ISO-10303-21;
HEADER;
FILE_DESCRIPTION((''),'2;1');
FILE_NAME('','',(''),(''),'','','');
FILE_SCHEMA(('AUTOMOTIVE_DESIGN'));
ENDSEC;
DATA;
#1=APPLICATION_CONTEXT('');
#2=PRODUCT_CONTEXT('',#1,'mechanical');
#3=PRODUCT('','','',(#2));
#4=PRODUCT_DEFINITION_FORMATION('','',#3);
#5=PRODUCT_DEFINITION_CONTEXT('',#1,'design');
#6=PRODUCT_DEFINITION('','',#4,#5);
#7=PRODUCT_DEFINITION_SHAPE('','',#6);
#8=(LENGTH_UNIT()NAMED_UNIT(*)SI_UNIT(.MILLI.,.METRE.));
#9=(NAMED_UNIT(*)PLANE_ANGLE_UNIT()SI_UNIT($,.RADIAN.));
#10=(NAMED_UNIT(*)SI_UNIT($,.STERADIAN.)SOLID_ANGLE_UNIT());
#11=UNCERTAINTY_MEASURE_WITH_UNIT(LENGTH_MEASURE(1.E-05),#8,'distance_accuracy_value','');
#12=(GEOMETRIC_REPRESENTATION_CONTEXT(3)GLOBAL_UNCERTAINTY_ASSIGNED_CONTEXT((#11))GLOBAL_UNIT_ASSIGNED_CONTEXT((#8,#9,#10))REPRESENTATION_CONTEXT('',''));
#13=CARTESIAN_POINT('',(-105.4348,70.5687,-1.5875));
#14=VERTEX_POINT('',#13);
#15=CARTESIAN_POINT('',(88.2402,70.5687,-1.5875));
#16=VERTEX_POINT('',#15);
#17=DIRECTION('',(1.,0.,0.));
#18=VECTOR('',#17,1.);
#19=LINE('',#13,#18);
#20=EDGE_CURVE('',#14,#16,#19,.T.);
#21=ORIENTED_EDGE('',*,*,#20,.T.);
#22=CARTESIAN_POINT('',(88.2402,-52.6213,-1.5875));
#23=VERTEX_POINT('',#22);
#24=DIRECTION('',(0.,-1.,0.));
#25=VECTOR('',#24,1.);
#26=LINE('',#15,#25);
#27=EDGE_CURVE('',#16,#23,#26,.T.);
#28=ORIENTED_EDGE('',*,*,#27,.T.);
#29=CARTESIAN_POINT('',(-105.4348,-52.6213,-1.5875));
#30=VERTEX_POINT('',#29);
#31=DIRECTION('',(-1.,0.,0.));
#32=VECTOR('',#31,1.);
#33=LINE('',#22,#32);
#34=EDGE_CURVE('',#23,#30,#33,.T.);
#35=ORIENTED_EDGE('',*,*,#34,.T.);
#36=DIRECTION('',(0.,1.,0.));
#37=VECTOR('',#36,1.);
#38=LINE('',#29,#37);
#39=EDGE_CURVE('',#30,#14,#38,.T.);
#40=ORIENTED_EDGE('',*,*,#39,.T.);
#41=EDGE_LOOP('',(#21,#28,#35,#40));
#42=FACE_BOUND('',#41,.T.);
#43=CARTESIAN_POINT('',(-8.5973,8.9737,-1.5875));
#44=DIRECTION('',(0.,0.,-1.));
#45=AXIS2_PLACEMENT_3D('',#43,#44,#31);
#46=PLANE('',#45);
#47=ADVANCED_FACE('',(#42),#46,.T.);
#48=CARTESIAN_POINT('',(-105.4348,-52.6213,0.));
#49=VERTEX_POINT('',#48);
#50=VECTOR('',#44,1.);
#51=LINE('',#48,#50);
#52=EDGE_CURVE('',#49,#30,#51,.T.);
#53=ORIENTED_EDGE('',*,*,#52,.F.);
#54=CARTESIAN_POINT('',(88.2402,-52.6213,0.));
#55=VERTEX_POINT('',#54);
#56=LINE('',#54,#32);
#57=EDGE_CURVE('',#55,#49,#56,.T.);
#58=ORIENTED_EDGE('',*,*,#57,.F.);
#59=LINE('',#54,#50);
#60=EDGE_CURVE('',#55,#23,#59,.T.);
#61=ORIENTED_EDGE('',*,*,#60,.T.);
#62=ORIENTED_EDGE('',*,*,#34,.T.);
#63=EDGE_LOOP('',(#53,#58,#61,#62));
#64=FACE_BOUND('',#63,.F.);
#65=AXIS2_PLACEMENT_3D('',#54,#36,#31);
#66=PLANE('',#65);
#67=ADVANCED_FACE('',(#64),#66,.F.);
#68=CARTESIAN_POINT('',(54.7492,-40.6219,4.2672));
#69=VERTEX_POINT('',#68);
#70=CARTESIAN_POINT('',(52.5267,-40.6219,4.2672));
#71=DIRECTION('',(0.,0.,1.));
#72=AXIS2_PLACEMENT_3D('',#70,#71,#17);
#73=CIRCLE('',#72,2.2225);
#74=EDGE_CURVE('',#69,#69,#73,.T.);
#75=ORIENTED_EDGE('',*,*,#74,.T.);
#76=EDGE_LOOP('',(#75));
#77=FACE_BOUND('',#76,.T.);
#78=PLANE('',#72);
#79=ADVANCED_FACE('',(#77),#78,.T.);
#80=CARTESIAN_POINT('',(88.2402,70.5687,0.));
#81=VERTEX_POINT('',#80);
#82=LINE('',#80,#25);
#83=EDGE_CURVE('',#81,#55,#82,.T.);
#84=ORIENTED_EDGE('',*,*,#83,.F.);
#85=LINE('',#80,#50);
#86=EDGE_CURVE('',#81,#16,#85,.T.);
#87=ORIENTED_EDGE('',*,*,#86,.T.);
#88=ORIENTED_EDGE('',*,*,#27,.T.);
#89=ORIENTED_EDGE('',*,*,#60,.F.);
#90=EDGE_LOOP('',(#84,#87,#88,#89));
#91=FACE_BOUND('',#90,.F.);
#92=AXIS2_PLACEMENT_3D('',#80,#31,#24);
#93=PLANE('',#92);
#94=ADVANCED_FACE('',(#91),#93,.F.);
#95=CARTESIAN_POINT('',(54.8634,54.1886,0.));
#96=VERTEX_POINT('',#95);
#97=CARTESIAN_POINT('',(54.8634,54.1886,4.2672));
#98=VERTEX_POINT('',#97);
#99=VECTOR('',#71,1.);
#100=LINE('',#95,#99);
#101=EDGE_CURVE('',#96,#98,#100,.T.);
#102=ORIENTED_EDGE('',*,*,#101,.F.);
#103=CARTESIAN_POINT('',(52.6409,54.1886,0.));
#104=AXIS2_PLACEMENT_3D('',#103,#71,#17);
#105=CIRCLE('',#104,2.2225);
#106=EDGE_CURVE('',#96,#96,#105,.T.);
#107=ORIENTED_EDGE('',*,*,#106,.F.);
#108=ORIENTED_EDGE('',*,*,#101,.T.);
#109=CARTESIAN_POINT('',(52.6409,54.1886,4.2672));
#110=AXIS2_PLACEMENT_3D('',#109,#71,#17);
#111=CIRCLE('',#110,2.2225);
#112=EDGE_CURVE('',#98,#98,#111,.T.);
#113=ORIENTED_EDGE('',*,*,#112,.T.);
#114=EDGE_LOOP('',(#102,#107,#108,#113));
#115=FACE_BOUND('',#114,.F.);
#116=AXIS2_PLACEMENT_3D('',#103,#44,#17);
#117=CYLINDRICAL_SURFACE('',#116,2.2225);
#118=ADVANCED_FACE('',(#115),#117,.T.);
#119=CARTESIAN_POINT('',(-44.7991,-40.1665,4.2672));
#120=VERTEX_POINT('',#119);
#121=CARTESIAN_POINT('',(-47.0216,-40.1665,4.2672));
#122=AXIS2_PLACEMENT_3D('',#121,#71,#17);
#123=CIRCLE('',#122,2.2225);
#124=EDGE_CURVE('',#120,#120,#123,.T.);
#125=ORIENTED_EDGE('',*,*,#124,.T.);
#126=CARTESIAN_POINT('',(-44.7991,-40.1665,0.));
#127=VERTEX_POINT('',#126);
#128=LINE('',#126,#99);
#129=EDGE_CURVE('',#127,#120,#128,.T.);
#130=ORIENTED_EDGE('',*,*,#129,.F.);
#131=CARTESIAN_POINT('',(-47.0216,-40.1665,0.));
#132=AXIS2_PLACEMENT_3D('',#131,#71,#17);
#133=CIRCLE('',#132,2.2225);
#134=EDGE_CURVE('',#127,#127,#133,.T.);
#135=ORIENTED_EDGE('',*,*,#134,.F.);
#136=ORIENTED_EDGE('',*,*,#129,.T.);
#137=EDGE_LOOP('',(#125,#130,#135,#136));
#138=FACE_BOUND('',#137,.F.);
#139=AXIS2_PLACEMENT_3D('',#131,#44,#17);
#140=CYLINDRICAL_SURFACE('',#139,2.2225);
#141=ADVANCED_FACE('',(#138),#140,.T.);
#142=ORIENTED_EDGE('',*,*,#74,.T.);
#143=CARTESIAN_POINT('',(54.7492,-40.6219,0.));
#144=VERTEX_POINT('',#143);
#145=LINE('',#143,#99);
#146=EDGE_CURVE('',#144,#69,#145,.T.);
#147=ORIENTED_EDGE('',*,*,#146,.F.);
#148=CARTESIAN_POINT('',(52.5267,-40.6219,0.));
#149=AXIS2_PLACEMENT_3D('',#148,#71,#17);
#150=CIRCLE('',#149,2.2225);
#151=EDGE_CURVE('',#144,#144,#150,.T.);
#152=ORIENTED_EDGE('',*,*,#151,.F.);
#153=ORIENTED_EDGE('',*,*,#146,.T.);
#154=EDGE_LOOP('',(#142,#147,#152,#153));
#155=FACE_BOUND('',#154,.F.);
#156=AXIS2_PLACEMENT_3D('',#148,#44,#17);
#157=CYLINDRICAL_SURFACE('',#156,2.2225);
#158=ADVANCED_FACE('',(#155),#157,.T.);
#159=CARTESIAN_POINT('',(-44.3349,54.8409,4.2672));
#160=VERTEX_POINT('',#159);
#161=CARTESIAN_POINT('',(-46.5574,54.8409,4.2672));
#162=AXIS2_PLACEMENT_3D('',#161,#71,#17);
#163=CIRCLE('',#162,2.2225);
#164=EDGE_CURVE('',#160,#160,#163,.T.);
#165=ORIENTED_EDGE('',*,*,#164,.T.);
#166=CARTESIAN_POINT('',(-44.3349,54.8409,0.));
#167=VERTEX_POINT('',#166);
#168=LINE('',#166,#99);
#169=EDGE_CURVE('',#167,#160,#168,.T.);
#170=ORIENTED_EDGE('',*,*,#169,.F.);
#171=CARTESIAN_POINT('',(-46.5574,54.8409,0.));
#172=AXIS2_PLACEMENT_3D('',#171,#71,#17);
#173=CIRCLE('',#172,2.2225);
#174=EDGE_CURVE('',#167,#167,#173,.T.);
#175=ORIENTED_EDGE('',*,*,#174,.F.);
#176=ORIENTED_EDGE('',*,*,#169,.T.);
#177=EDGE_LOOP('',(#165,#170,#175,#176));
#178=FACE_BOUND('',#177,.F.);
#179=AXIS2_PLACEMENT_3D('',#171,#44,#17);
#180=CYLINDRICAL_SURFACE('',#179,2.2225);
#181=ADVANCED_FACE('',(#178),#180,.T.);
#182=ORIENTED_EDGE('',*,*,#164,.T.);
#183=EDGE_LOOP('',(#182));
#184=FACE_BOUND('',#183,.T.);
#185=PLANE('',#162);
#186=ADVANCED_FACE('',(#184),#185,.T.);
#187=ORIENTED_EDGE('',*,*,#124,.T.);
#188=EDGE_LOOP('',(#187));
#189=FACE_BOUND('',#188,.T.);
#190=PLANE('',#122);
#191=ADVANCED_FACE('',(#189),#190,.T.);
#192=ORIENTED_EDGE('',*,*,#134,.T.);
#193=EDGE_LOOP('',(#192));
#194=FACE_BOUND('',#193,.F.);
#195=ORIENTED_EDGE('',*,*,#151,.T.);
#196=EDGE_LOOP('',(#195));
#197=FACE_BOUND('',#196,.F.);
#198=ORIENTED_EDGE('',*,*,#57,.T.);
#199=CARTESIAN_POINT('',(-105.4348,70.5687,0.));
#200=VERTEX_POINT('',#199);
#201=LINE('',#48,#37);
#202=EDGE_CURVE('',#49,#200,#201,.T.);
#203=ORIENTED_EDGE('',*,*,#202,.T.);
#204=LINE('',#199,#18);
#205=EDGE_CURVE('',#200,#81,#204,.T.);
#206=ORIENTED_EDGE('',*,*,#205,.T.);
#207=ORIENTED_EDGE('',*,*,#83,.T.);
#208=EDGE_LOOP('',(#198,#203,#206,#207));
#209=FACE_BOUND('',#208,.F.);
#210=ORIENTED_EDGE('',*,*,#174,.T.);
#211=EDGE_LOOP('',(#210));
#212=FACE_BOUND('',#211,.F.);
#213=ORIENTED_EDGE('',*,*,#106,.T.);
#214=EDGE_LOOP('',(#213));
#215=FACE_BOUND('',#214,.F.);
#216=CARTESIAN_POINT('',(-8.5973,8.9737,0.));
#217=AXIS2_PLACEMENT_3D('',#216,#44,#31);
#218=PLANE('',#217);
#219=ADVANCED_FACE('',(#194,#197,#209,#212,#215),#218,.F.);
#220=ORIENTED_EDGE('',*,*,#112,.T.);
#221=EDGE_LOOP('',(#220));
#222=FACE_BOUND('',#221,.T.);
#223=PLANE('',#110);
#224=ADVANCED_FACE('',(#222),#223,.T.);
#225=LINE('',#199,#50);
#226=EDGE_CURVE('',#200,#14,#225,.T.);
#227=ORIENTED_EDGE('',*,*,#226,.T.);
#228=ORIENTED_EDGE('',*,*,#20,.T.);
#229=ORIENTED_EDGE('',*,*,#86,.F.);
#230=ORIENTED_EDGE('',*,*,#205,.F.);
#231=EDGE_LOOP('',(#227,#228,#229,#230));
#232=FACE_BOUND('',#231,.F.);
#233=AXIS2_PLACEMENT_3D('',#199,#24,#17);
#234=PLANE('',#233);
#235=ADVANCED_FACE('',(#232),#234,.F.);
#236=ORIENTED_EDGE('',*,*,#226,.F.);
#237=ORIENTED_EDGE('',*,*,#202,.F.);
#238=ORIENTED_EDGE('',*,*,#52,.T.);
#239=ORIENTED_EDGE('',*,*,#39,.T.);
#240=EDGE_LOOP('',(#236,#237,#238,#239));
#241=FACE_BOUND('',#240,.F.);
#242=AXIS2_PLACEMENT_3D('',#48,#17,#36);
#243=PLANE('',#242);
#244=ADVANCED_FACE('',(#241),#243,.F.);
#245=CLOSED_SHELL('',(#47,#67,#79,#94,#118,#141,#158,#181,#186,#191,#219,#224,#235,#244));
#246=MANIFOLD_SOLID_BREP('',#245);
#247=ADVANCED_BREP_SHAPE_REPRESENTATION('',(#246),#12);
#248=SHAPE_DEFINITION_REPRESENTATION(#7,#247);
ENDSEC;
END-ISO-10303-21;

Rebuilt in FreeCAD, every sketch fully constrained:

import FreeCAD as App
import Part
import Sketcher
Q = App.Units.Quantity

doc = App.newDocument("Part")
params = doc.addObject("Spreadsheet::Sheet", "Params")
for row, (alias, value) in enumerate([
    ("sketch1_height", "4.85 in"),
    ("sketch1_width", "7.625 in"),
    ("pad1_length", "0.0625 in"),
    ("sketch2_diameter", "0.175 in"),
    ("pad2_length", "0.168 in"),
], start=1):
    params.set(f"A{row}", alias)
    params.set(f"B{row}", "=" + value)
    params.setAlias(f"B{row}", alias)

body = doc.addObject("PartDesign::Body", "Body")

# Sketch on XY plane
sketch1 = body.newObject("Sketcher::SketchObject", "Sketch")
sketch1.AttachmentSupport = (doc.getObject("XY_Plane"), [""])
sketch1.MapMode = "FlatFace"
sketch1.addGeometry([
    Part.LineSegment(App.Vector(-105, -53, 0), App.Vector(88, -53, 0)),
    Part.LineSegment(App.Vector(88, -53, 0), App.Vector(88, 71, 0)),
    Part.LineSegment(App.Vector(88, 71, 0), App.Vector(-105, 71, 0)),
    Part.LineSegment(App.Vector(-105, 71, 0), App.Vector(-105, -53, 0)),
], False)
sketch1.addConstraint([
    Sketcher.Constraint("Coincident", 0, 2, 1, 1),
    Sketcher.Constraint("Coincident", 1, 2, 2, 1),
    Sketcher.Constraint("Coincident", 2, 2, 3, 1),
    Sketcher.Constraint("Coincident", 3, 2, 0, 1),
    Sketcher.Constraint("Horizontal", 0),
    Sketcher.Constraint("Vertical", 1),
    Sketcher.Constraint("Horizontal", 2),
    Sketcher.Constraint("Vertical", 3),
    Sketcher.Constraint("DistanceY", 1, 1, 1, 2, Q("4.85 in")),
    Sketcher.Constraint("DistanceX", 0, 1, 0, 2, Q("7.625 in")),
    Sketcher.Constraint("DistanceY", 0, 2, -1, 1, Q("2.0717 in")),
    Sketcher.Constraint("DistanceX", -1, 1, 0, 2, 88.2402),
])
sketch1.setExpression("Constraints[8]", "Params.sketch1_height")
sketch1.setExpression("Constraints[9]", "Params.sketch1_width")
pad1 = body.newObject("PartDesign::Pad", "Pad")
pad1.Profile = sketch1
pad1.setExpression("Length", "Params.pad1_length")
pad1.Reversed = True

# Sketch on XY plane
sketch2 = body.newObject("Sketcher::SketchObject", "Sketch001")
sketch2.AttachmentSupport = (doc.getObject("XY_Plane"), [""])
sketch2.MapMode = "FlatFace"
sketch2.addGeometry([
    Part.Circle(App.Vector(-47, -40.2, 0), App.Vector(0, 0, 1), 2.2),
    Part.Circle(App.Vector(-46.6, 54.8, 0), App.Vector(0, 0, 1), 2.2),
    Part.Circle(App.Vector(52.6, 54.2, 0), App.Vector(0, 0, 1), 2.2),
    Part.Circle(App.Vector(52.5, -40.6, 0), App.Vector(0, 0, 1), 2.2),
], False)
sketch2.addConstraint([
    Sketcher.Constraint("Equal", 0, 1),
    Sketcher.Constraint("Equal", 1, 2),
    Sketcher.Constraint("Equal", 2, 3),
    Sketcher.Constraint("Diameter", 0, Q("0.175 in")),
    Sketcher.Constraint("DistanceY", -1, 1, 1, 3, Q("2.1591 in")),
    Sketcher.Constraint("DistanceY", -1, 1, 2, 3, Q("2.1334 in")),
    Sketcher.Constraint("DistanceX", 3, 3, 2, 3, Q("0.0045 in")),
    Sketcher.Constraint("DistanceY", 3, 3, 2, 3, Q("3.7327 in")),
    Sketcher.Constraint("DistanceX", 0, 3, -1, 1, 47.0216),
    Sketcher.Constraint("DistanceY", 0, 3, -1, 1, 40.1665),
    Sketcher.Constraint("DistanceX", 1, 3, -1, 1, 46.5574),
    Sketcher.Constraint("DistanceX", -1, 1, 2, 3, 52.641),
])
sketch2.setExpression("Constraints[3]", "Params.sketch2_diameter")
pad2 = body.newObject("PartDesign::Pad", "Pad001")
pad2.Profile = sketch2
pad2.setExpression("Length", "Params.pad2_length")

doc.recompute()
